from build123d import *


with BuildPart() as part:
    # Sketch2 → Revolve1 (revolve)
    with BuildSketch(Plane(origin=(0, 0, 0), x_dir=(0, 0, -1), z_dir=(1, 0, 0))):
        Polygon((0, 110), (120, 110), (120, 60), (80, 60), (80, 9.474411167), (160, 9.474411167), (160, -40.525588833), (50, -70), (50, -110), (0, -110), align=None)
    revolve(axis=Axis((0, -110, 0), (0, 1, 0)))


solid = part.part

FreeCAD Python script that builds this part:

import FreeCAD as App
import Part
import Sketcher
from FreeCAD import Vector
Q = App.Units.Quantity


def add_polygon(sketch, points):
    """Adds a closed chain of lines whose ends are joined by coincident constraints."""
    first, n = sketch.GeometryCount, len(points)
    for a, b in zip(points, points[1:] + points[:1]):
        sketch.addGeometry(Part.LineSegment(App.Vector(*a, 0), App.Vector(*b, 0)), False)
    for i in range(n):
        sketch.addConstraint(Sketcher.Constraint("Coincident", first + i, 2, first + (i + 1) % n, 1))

doc = App.newDocument("Part")
body = doc.addObject("PartDesign::Body", "Body")

sketch1 = doc.addObject("Sketcher::SketchObject", "Sketch")
body.addObject(sketch1)
sketch1.AttachmentSupport = (doc.YZ_Plane, [""])
sketch1.MapMode = "FlatFace"
add_polygon(sketch1, [(110, -120), (110, 0), (-110, 0), (-110, -50), (-70, -50), (-41, -160), (9, -160), (9, -80), (60, -80), (60, -120)])
sketch1.addConstraint([
    Sketcher.Constraint("Vertical", 0),
    Sketcher.Constraint("Horizontal", 1),
    Sketcher.Constraint("Vertical", 2),
    Sketcher.Constraint("Horizontal", 3),
    Sketcher.Constraint("Horizontal", 5),
    Sketcher.Constraint("Vertical", 6),
    Sketcher.Constraint("Horizontal", 7),
    Sketcher.Constraint("Vertical", 8),
    Sketcher.Constraint("Horizontal", 9),
    Sketcher.Constraint("Symmetric", 0, 2, 1, 2, -1, 1),
    Sketcher.Constraint("Equal", 5, 9),
    Sketcher.Constraint("Equal", 9, 2),
    Sketcher.Constraint("Equal", 3, 8),
    Sketcher.Constraint("DistanceX", 1, 2, 1, 1, 220.0),
    Sketcher.Constraint("DistanceX", 3, 1, 3, 2, 40.0),
    Sketcher.Constraint("DistanceX", 5, 1, 5, 2, 50.0),
    Sketcher.Constraint("DistanceY", 0, 1, 0, 2, 120.0),
    Sketcher.Constraint("DistanceY", 6, 1, 6, 2, 80.0),
    Sketcher.Constraint("Angle", 4, Q("-75 deg")),
])
revolution = doc.addObject("PartDesign::Revolution", "Revolution")
body.addObject(revolution)
revolution.Profile = sketch1
revolution.ReferenceAxis = (sketch1, ["H_Axis"])
revolution.Angle = 360

doc.recompute()
